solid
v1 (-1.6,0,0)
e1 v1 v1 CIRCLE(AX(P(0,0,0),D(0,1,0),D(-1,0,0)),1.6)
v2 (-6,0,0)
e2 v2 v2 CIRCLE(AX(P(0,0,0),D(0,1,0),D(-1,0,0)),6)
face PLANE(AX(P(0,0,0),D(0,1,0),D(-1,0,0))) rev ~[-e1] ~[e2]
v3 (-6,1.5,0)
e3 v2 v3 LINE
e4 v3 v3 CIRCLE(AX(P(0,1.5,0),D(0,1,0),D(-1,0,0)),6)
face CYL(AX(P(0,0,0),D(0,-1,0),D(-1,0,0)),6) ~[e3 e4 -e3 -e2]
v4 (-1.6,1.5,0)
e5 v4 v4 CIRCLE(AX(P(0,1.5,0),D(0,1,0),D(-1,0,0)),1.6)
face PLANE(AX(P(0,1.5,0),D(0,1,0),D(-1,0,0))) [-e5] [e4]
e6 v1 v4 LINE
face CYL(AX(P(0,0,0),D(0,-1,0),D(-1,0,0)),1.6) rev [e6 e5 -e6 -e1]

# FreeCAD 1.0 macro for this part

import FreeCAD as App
import Part
import Sketcher
from FreeCAD import Vector
Q = App.Units.Quantity

doc = App.newDocument("Part")
body = doc.addObject("PartDesign::Body", "Body")

# Sketch on XZ plane
sketch1 = body.newObject("Sketcher::SketchObject", "Sketch")
sketch1.AttachmentSupport = (doc.getObject("XZ_Plane"), [""])
sketch1.MapMode = "FlatFace"
sketch1.addGeometry(Part.Circle(Vector(0, 0, 0), Vector(0, 0, 1), 6), False)
sketch1.addGeometry(Part.Circle(Vector(0, 0, 0), Vector(0, 0, 1), 1.6), False)
sketch1.addConstraint(Sketcher.Constraint("Coincident", 0, 3, -1, 1))
sketch1.addConstraint(Sketcher.Constraint("Coincident", 1, 3, -1, 1))
sketch1.addConstraint(Sketcher.Constraint("Diameter", 0, Q("12 mm")))
sketch1.addConstraint(Sketcher.Constraint("Diameter", 1, Q("3.2 mm")))
pad1 = body.newObject("PartDesign::Pad", "Pad")
pad1.Profile = sketch1
pad1.Length = 1.5
pad1.Reversed = True

doc.recompute()
